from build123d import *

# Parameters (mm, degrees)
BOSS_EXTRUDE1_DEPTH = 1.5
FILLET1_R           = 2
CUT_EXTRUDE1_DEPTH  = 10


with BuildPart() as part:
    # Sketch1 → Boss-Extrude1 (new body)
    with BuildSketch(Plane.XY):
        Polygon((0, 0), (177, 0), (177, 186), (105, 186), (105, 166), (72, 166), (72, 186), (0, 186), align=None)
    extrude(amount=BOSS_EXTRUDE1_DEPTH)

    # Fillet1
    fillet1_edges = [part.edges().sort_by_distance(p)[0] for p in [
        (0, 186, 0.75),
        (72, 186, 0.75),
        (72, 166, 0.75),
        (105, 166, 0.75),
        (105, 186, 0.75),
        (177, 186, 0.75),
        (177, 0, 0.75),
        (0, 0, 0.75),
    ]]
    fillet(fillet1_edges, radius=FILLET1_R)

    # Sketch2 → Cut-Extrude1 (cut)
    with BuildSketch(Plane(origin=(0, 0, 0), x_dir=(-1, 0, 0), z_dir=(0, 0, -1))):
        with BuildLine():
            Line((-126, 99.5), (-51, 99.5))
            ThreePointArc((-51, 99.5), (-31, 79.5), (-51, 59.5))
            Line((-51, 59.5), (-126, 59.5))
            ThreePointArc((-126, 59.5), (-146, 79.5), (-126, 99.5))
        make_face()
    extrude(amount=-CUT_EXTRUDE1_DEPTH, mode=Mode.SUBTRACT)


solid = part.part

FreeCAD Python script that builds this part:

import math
import FreeCAD as App
import Part
import Sketcher
Q = App.Units.Quantity


def edges_at(feature, points):
    """Names of the edges that pass closest to the given points."""
    edges = feature.Shape.Edges
    near = lambda p: min(range(len(edges)), key=lambda i: edges[i].distToShape(Part.Vertex(*p))[0])
    return sorted({f"Edge{near(p) + 1}" for p in points})


def add_polygon(sketch, points):
    """Adds a closed chain of lines whose ends are joined by coincident constraints."""
    first, n = sketch.GeometryCount, len(points)
    for a, b in zip(points, points[1:] + points[:1]):
        sketch.addGeometry(Part.LineSegment(App.Vector(*a, 0), App.Vector(*b, 0)), False)
    for i in range(n):
        sketch.addConstraint(Sketcher.Constraint("Coincident", first + i, 2, first + (i + 1) % n, 1))

doc = App.newDocument("Part")
params = doc.addObject("Spreadsheet::Sheet", "Params")
for row, (alias, value) in enumerate([
    ("sketch1_width", "177 mm"),
    ("sketch1_width2", "72 mm"),
    ("sketch1_height", "186 mm"),
    ("sketch1_height2", "20 mm"),
    ("pad1_length", "1.5 mm"),
    ("fillet_radius", "2 mm"),
    ("sketch2_radius", "20 mm"),
    ("sketch2_width", "75 mm"),
    ("pocket1_length", "10 mm"),
], start=1):
    params.set(f"A{row}", alias)
    params.set(f"B{row}", "=" + value)
    params.setAlias(f"B{row}", alias)

body = doc.addObject("PartDesign::Body", "Body")

sketch1 = body.newObject("Sketcher::SketchObject", "Sketch")
sketch1.AttachmentSupport = (doc.getObject("XY_Plane"), [""])
sketch1.MapMode = "FlatFace"
add_polygon(sketch1, [(0, 0), (177, 0), (177, 186), (105, 186), (105, 166), (72, 166), (72, 186), (0, 186)])
sketch1.addConstraint([
    Sketcher.Constraint("Horizontal", 0),
    Sketcher.Constraint("Vertical", 1),
    Sketcher.Constraint("Horizontal", 2),
    Sketcher.Constraint("Vertical", 3),
    Sketcher.Constraint("Horizontal", 4),
    Sketcher.Constraint("Vertical", 5),
    Sketcher.Constraint("Horizontal", 6),
    Sketcher.Constraint("Vertical", 7),
    Sketcher.Constraint("Coincident", 7, 2, -1, 1),
    Sketcher.Constraint("Horizontal", 2, 2, 5, 2),
    Sketcher.Constraint("Equal", 2, 6),
    Sketcher.Constraint("DistanceX", 0, 1, 0, 2, Q("177 mm")),
    Sketcher.Constraint("DistanceX", 2, 2, 2, 1, Q("72 mm")),
    Sketcher.Constraint("DistanceY", 1, 1, 1, 2, Q("186 mm")),
    Sketcher.Constraint("DistanceY", 3, 2, 3, 1, Q("20 mm")),
])
sketch1.setExpression("Constraints[19]", "Params.sketch1_width")
sketch1.setExpression("Constraints[20]", "Params.sketch1_width2")
sketch1.setExpression("Constraints[21]", "Params.sketch1_height")
sketch1.setExpression("Constraints[22]", "Params.sketch1_height2")
pad1 = body.newObject("PartDesign::Pad", "Pad")
pad1.Profile = sketch1
pad1.setExpression("Length", "Params.pad1_length")
doc.recompute()

fillet = body.newObject("PartDesign::Fillet", "Fillet")
fillet.Base = (pad1, edges_at(pad1, [
    (0, 186, 0.75),
    (72, 186, 0.75),
    (72, 166, 0.75),
    (105, 166, 0.75),
    (105, 186, 0.75),
    (177, 186, 0.75),
    (177, 0, 0.75),
    (0, 0, 0.75),
]))
fillet.setExpression("Radius", "Params.fillet_radius")

sketch2 = body.newObject("Sketcher::SketchObject", "Sketch001")
sketch2.AttachmentSupport = (doc.getObject("XY_Plane"), [""])
sketch2.MapMode = "FlatFace"
sketch2.addGeometry([
    Part.LineSegment(App.Vector(51, 99.5, 0), App.Vector(126, 99.5, 0)),
    Part.ArcOfCircle(Part.Circle(App.Vector(126, 79.5, 0), App.Vector(0, 0, 1), 20), math.radians(-90), math.radians(90)),
    Part.LineSegment(App.Vector(126, 59.5, 0), App.Vector(51, 59.5, 0)),
    Part.ArcOfCircle(Part.Circle(App.Vector(51, 79.5, 0), App.Vector(0, 0, 1), 20), math.radians(90), math.radians(270)),
], False)
sketch2.addConstraint([
    Sketcher.Constraint("Tangent", 0, 2, 1, 2),
    Sketcher.Constraint("Tangent", 1, 1, 2, 1),
    Sketcher.Constraint("Tangent", 2, 2, 3, 2),
    Sketcher.Constraint("Tangent", 3, 1, 0, 1),
    Sketcher.Constraint("Horizontal", 0),
    Sketcher.Constraint("Horizontal", 2),
    Sketcher.Constraint("Radius", 1, Q("20 mm")),
    Sketcher.Constraint("DistanceX", 0, 1, 0, 2, Q("75 mm")),
    Sketcher.Constraint("DistanceX", -1, 1, 1, 3, Q("126 mm")),
    Sketcher.Constraint("DistanceY", -1, 1, 1, 3, Q("79.5 mm")),
])
sketch2.setExpression("Constraints[6]", "Params.sketch2_radius")
sketch2.setExpression("Constraints[7]", "Params.sketch2_width")
pocket1 = body.newObject("PartDesign::Pocket", "Pocket")
pocket1.Profile = sketch2
pocket1.setExpression("Length", "Params.pocket1_length")
pocket1.Reversed = True

doc.recompute()
